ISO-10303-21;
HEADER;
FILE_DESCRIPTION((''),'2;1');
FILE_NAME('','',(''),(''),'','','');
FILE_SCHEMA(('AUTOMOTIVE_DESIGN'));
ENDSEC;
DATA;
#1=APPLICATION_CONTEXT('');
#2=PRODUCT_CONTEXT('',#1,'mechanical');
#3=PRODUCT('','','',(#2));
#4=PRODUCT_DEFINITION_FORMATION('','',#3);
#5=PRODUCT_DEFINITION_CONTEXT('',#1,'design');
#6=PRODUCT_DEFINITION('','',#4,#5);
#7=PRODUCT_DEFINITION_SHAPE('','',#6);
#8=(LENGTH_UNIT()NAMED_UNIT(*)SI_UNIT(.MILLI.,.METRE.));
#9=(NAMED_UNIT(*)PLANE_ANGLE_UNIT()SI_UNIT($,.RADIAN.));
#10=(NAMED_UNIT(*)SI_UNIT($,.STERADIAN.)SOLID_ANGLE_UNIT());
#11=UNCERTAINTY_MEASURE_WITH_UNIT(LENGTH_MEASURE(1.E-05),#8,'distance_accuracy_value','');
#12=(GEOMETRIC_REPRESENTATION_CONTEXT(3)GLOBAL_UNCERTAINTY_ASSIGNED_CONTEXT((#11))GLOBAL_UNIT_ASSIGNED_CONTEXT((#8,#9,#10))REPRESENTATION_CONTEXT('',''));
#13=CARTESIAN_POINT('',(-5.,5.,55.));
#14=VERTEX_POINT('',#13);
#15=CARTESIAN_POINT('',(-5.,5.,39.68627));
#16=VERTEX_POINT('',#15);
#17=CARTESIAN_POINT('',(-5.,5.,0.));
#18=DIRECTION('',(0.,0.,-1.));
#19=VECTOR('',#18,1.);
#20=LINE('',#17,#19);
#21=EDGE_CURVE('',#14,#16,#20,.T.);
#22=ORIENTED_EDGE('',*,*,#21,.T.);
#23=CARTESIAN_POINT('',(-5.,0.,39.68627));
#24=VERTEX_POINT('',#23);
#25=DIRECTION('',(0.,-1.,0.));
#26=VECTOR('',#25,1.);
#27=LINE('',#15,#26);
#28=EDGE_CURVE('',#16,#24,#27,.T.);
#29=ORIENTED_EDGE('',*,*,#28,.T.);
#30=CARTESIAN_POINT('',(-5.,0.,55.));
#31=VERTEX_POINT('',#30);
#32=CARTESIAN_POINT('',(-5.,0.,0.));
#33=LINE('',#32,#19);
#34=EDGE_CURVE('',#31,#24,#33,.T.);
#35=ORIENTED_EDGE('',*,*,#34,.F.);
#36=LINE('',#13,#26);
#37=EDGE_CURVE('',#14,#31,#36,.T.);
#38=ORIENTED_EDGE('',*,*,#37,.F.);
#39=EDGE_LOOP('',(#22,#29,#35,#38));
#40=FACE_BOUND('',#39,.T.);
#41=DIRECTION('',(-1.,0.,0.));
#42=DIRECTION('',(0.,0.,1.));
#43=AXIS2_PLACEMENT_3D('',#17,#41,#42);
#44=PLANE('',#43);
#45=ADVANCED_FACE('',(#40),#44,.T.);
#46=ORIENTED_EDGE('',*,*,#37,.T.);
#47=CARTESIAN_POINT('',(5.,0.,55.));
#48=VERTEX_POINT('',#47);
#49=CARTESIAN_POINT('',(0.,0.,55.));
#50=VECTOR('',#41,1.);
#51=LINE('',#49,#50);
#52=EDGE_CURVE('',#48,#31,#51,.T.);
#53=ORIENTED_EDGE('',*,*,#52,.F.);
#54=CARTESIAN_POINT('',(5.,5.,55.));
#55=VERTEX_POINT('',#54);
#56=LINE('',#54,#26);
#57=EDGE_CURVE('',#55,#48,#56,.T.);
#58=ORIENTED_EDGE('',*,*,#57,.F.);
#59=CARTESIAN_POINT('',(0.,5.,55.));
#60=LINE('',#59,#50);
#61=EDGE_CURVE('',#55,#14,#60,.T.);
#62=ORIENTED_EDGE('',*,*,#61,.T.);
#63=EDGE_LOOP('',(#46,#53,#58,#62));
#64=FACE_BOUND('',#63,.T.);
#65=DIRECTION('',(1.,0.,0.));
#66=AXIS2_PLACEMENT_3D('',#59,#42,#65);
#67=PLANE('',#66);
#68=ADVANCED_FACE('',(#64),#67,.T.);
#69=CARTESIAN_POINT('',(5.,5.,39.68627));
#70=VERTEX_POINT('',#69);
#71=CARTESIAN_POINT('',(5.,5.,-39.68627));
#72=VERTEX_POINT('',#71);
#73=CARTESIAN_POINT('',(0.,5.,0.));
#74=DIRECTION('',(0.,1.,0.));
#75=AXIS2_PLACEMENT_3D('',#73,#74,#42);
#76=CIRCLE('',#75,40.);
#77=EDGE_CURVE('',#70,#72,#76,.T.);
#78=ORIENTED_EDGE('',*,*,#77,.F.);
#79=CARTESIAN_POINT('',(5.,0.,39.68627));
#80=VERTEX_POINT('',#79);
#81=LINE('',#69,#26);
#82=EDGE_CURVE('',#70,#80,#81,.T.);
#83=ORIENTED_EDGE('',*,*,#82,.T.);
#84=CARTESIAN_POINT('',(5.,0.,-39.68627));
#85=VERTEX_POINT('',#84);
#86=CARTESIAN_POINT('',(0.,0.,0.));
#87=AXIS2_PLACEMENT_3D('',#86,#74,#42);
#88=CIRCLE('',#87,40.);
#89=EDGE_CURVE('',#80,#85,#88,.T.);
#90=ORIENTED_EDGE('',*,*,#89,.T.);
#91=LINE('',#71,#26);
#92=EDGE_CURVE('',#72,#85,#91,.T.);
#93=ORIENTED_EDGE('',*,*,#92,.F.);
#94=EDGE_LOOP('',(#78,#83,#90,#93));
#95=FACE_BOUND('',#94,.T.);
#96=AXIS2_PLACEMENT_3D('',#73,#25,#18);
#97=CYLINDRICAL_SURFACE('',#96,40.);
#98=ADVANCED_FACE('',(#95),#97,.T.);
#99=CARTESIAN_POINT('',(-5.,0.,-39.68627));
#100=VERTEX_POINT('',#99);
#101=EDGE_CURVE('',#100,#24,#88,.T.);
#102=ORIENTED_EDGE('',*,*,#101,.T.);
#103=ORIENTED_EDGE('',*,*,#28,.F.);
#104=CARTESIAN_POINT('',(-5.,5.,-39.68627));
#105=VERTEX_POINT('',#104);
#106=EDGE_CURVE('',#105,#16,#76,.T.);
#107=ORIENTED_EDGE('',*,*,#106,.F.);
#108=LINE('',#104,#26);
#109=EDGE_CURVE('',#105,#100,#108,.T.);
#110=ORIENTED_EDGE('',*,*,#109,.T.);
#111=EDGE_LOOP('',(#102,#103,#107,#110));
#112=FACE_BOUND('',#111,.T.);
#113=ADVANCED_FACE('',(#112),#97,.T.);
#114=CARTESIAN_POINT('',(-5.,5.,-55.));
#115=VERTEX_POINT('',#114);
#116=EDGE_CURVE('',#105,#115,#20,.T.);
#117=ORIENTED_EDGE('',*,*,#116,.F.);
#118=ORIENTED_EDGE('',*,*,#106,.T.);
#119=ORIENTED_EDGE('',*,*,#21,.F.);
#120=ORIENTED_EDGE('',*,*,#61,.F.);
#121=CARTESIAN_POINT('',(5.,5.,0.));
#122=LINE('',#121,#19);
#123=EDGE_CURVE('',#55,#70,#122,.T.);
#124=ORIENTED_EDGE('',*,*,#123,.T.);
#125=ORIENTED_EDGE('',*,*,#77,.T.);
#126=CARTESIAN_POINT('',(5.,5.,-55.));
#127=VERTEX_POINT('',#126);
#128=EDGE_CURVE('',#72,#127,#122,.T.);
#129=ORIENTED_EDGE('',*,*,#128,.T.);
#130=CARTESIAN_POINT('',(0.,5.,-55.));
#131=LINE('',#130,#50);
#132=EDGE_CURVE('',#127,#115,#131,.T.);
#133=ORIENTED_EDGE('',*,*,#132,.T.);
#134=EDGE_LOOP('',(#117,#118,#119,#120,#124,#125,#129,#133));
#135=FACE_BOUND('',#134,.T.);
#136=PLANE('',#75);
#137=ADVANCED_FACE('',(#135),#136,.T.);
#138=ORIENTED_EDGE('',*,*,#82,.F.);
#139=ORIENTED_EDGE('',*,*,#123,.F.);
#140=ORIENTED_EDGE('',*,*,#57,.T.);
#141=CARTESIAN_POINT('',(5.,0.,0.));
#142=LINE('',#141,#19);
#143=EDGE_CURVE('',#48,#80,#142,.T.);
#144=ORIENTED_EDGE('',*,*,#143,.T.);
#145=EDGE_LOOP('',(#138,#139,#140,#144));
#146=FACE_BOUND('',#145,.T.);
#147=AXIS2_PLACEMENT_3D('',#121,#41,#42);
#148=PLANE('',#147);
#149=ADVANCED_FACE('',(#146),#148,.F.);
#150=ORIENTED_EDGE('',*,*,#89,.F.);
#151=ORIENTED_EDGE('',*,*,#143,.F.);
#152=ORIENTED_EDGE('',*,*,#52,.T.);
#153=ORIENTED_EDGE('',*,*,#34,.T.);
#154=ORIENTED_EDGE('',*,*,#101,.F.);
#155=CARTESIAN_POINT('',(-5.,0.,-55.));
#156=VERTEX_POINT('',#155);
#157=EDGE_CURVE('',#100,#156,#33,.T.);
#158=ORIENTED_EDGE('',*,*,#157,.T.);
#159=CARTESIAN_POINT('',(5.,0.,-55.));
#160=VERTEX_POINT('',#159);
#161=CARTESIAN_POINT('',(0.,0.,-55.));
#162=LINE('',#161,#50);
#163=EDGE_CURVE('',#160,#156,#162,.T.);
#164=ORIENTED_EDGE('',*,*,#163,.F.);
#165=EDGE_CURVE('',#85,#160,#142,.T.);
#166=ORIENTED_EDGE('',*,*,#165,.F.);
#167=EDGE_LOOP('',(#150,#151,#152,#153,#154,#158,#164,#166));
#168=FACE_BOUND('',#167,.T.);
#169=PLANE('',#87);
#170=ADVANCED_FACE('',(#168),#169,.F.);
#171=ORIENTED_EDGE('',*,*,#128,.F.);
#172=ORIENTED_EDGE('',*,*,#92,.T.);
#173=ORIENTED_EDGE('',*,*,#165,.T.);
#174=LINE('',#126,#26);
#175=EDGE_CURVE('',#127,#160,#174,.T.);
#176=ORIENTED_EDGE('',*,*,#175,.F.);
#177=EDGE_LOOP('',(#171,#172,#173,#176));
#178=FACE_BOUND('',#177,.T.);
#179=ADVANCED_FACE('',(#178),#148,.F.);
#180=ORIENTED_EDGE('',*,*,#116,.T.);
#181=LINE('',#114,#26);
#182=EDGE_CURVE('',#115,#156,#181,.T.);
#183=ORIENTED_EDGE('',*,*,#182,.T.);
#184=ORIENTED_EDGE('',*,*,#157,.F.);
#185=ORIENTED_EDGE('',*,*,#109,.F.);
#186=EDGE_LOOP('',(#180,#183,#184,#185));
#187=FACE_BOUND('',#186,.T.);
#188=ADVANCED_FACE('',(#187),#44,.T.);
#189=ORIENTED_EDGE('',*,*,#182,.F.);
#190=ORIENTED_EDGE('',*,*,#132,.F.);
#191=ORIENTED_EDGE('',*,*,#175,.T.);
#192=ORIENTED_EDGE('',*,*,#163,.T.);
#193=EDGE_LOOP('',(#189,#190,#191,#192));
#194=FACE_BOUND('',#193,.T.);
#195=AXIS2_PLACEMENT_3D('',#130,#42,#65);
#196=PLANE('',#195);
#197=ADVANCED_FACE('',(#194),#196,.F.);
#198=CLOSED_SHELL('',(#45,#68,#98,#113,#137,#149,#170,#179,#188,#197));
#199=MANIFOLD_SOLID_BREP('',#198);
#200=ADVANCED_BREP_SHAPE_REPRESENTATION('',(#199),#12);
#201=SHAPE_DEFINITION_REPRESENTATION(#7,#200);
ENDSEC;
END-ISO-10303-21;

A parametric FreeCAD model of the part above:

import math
import FreeCAD as App
import Part
import Sketcher
from FreeCAD import Vector

doc = App.newDocument("Part")
body = doc.addObject("PartDesign::Body", "Body")

sketch1 = body.newObject("Sketcher::SketchObject", "Sketch")
sketch1.AttachmentSupport = (doc.getObject("XZ_Plane"), [""])
sketch1.MapMode = "FlatFace"
sketch1.addGeometry([
    Part.ArcOfCircle(Part.Circle(Vector(0, 0, 0), Vector(0, 0, 1), 40), math.radians(97), math.radians(263)),
    Part.LineSegment(Vector(-5, 40, 0), Vector(-5, 55, 0)),
    Part.LineSegment(Vector(-5, 55, 0), Vector(5, 55, 0)),
    Part.LineSegment(Vector(5, 55, 0), Vector(5, 40, 0)),
    Part.ArcOfCircle(Part.Circle(Vector(0, 0, 0), Vector(0, 0, 1), 40), math.radians(0), math.radians(83)),
    Part.ArcOfCircle(Part.Circle(Vector(0, 0, 0), Vector(0, 0, 1), 40), math.radians(-83), math.radians(0)),
    Part.LineSegment(Vector(5, -40, 0), Vector(5, -55, 0)),
    Part.LineSegment(Vector(5, -55, 0), Vector(-5, -55, 0)),
    Part.LineSegment(Vector(-5, -55, 0), Vector(-5, -40, 0)),
], False)
sketch1.addConstraint([
    Sketcher.Constraint("Coincident", 0, 1, 1, 1),
    Sketcher.Constraint("Coincident", 1, 2, 2, 1),
    Sketcher.Constraint("Coincident", 2, 2, 3, 1),
    Sketcher.Constraint("Coincident", 3, 2, 4, 2),
    Sketcher.Constraint("Tangent", 4, 1, 5, 2),
    Sketcher.Constraint("Coincident", 5, 1, 6, 1),
    Sketcher.Constraint("Coincident", 6, 2, 7, 1),
    Sketcher.Constraint("Coincident", 7, 2, 8, 1),
    Sketcher.Constraint("Coincident", 8, 2, 0, 2),
    Sketcher.Constraint("Vertical", 1),
    Sketcher.Constraint("Horizontal", 2),
    Sketcher.Constraint("Vertical", 3),
    Sketcher.Constraint("Vertical", 6),
    Sketcher.Constraint("Horizontal", 7),
    Sketcher.Constraint("Vertical", 8),
    Sketcher.Constraint("Coincident", 0, 3, -1, 1),
    Sketcher.Constraint("Coincident", 4, 3, -1, 1),
    Sketcher.Constraint("Equal", 0, 4),
    Sketcher.Constraint("Equal", 4, 5),
    Sketcher.Constraint("Symmetric", 1, 2, 6, 2, -1, 1),
    Sketcher.Constraint("PointOnObject", 4, 1, -1),
    Sketcher.Constraint("Horizontal", 0, 1, 3, 2),
    Sketcher.Constraint("Horizontal", 5, 1, 8, 2),
    Sketcher.Constraint("Radius", 0, 40.0),
    Sketcher.Constraint("DistanceX", 2, 1, 2, 2, 10.0),
    Sketcher.Constraint("DistanceY", -1, 1, 1, 2, 55.0),
])
pad1 = body.newObject("PartDesign::Pad", "Pad")
pad1.Profile = sketch1
pad1.Length = 5
pad1.Reversed = True

doc.recompute()
